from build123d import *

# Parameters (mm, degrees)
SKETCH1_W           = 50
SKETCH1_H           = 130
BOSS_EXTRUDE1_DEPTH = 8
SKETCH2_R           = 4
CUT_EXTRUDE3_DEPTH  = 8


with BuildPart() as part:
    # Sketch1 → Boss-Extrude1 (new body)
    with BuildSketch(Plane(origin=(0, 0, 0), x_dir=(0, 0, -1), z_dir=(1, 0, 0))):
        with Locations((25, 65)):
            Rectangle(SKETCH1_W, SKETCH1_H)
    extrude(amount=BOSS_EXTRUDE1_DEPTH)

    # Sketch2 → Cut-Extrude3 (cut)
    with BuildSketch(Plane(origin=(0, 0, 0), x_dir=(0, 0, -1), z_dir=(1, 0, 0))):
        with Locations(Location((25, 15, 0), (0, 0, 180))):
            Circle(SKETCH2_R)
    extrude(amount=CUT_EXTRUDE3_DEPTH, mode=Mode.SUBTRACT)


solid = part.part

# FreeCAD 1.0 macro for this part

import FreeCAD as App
import Part
import Sketcher

V = App.Vector
Q = App.Units.Quantity

doc = App.newDocument("Part")
body = doc.addObject("PartDesign::Body", "Body")

# Sketch on YZ plane
sketch1 = body.newObject("Sketcher::SketchObject", "Sketch")
sketch1.AttachmentSupport = (doc.getObject("YZ_Plane"), [""])
sketch1.MapMode = "FlatFace"
sketch1.addGeometry([
    Part.LineSegment(V(130, 0, 0), V(0, 0, 0)),
    Part.LineSegment(V(0, 0, 0), V(0, -50, 0)),
    Part.LineSegment(V(0, -50, 0), V(130, -50, 0)),
    Part.LineSegment(V(130, -50, 0), V(130, 0, 0)),
], False)
sketch1.addConstraint([
    Sketcher.Constraint("Coincident", 0, 2, 1, 1),
    Sketcher.Constraint("Coincident", 1, 2, 2, 1),
    Sketcher.Constraint("Coincident", 2, 2, 3, 1),
    Sketcher.Constraint("Coincident", 3, 2, 0, 1),
    Sketcher.Constraint("Horizontal", 0),
    Sketcher.Constraint("Vertical", 1),
    Sketcher.Constraint("Horizontal", 2),
    Sketcher.Constraint("Vertical", 3),
    Sketcher.Constraint("Coincident", 0, 2, -1, 1),
    Sketcher.Constraint("DistanceX", 0, 2, 0, 1, Q("130 mm")),
    Sketcher.Constraint("DistanceY", 1, 2, 1, 1, Q("50 mm")),
])
pad1 = body.newObject("PartDesign::Pad", "Pad")
pad1.Profile = sketch1
pad1.Length = 8

# Sketch on YZ plane
sketch2 = body.newObject("Sketcher::SketchObject", "Sketch001")
sketch2.AttachmentSupport = (doc.getObject("YZ_Plane"), [""])
sketch2.MapMode = "FlatFace"
sketch2.addGeometry(Part.Circle(V(15, -25, 0), V(0, 0, 1), 4), False)
sketch2.addConstraint([
    Sketcher.Constraint("Diameter", 0, Q("8 mm")),
    Sketcher.Constraint("DistanceX", -1, 1, 0, 3, Q("15 mm")),
    Sketcher.Constraint("DistanceY", 0, 3, -1, 1, Q("25 mm")),
])
pocket1 = body.newObject("PartDesign::Pocket", "Pocket")
pocket1.Profile = sketch2
pocket1.Length = 8
pocket1.Reversed = True

doc.recompute()
